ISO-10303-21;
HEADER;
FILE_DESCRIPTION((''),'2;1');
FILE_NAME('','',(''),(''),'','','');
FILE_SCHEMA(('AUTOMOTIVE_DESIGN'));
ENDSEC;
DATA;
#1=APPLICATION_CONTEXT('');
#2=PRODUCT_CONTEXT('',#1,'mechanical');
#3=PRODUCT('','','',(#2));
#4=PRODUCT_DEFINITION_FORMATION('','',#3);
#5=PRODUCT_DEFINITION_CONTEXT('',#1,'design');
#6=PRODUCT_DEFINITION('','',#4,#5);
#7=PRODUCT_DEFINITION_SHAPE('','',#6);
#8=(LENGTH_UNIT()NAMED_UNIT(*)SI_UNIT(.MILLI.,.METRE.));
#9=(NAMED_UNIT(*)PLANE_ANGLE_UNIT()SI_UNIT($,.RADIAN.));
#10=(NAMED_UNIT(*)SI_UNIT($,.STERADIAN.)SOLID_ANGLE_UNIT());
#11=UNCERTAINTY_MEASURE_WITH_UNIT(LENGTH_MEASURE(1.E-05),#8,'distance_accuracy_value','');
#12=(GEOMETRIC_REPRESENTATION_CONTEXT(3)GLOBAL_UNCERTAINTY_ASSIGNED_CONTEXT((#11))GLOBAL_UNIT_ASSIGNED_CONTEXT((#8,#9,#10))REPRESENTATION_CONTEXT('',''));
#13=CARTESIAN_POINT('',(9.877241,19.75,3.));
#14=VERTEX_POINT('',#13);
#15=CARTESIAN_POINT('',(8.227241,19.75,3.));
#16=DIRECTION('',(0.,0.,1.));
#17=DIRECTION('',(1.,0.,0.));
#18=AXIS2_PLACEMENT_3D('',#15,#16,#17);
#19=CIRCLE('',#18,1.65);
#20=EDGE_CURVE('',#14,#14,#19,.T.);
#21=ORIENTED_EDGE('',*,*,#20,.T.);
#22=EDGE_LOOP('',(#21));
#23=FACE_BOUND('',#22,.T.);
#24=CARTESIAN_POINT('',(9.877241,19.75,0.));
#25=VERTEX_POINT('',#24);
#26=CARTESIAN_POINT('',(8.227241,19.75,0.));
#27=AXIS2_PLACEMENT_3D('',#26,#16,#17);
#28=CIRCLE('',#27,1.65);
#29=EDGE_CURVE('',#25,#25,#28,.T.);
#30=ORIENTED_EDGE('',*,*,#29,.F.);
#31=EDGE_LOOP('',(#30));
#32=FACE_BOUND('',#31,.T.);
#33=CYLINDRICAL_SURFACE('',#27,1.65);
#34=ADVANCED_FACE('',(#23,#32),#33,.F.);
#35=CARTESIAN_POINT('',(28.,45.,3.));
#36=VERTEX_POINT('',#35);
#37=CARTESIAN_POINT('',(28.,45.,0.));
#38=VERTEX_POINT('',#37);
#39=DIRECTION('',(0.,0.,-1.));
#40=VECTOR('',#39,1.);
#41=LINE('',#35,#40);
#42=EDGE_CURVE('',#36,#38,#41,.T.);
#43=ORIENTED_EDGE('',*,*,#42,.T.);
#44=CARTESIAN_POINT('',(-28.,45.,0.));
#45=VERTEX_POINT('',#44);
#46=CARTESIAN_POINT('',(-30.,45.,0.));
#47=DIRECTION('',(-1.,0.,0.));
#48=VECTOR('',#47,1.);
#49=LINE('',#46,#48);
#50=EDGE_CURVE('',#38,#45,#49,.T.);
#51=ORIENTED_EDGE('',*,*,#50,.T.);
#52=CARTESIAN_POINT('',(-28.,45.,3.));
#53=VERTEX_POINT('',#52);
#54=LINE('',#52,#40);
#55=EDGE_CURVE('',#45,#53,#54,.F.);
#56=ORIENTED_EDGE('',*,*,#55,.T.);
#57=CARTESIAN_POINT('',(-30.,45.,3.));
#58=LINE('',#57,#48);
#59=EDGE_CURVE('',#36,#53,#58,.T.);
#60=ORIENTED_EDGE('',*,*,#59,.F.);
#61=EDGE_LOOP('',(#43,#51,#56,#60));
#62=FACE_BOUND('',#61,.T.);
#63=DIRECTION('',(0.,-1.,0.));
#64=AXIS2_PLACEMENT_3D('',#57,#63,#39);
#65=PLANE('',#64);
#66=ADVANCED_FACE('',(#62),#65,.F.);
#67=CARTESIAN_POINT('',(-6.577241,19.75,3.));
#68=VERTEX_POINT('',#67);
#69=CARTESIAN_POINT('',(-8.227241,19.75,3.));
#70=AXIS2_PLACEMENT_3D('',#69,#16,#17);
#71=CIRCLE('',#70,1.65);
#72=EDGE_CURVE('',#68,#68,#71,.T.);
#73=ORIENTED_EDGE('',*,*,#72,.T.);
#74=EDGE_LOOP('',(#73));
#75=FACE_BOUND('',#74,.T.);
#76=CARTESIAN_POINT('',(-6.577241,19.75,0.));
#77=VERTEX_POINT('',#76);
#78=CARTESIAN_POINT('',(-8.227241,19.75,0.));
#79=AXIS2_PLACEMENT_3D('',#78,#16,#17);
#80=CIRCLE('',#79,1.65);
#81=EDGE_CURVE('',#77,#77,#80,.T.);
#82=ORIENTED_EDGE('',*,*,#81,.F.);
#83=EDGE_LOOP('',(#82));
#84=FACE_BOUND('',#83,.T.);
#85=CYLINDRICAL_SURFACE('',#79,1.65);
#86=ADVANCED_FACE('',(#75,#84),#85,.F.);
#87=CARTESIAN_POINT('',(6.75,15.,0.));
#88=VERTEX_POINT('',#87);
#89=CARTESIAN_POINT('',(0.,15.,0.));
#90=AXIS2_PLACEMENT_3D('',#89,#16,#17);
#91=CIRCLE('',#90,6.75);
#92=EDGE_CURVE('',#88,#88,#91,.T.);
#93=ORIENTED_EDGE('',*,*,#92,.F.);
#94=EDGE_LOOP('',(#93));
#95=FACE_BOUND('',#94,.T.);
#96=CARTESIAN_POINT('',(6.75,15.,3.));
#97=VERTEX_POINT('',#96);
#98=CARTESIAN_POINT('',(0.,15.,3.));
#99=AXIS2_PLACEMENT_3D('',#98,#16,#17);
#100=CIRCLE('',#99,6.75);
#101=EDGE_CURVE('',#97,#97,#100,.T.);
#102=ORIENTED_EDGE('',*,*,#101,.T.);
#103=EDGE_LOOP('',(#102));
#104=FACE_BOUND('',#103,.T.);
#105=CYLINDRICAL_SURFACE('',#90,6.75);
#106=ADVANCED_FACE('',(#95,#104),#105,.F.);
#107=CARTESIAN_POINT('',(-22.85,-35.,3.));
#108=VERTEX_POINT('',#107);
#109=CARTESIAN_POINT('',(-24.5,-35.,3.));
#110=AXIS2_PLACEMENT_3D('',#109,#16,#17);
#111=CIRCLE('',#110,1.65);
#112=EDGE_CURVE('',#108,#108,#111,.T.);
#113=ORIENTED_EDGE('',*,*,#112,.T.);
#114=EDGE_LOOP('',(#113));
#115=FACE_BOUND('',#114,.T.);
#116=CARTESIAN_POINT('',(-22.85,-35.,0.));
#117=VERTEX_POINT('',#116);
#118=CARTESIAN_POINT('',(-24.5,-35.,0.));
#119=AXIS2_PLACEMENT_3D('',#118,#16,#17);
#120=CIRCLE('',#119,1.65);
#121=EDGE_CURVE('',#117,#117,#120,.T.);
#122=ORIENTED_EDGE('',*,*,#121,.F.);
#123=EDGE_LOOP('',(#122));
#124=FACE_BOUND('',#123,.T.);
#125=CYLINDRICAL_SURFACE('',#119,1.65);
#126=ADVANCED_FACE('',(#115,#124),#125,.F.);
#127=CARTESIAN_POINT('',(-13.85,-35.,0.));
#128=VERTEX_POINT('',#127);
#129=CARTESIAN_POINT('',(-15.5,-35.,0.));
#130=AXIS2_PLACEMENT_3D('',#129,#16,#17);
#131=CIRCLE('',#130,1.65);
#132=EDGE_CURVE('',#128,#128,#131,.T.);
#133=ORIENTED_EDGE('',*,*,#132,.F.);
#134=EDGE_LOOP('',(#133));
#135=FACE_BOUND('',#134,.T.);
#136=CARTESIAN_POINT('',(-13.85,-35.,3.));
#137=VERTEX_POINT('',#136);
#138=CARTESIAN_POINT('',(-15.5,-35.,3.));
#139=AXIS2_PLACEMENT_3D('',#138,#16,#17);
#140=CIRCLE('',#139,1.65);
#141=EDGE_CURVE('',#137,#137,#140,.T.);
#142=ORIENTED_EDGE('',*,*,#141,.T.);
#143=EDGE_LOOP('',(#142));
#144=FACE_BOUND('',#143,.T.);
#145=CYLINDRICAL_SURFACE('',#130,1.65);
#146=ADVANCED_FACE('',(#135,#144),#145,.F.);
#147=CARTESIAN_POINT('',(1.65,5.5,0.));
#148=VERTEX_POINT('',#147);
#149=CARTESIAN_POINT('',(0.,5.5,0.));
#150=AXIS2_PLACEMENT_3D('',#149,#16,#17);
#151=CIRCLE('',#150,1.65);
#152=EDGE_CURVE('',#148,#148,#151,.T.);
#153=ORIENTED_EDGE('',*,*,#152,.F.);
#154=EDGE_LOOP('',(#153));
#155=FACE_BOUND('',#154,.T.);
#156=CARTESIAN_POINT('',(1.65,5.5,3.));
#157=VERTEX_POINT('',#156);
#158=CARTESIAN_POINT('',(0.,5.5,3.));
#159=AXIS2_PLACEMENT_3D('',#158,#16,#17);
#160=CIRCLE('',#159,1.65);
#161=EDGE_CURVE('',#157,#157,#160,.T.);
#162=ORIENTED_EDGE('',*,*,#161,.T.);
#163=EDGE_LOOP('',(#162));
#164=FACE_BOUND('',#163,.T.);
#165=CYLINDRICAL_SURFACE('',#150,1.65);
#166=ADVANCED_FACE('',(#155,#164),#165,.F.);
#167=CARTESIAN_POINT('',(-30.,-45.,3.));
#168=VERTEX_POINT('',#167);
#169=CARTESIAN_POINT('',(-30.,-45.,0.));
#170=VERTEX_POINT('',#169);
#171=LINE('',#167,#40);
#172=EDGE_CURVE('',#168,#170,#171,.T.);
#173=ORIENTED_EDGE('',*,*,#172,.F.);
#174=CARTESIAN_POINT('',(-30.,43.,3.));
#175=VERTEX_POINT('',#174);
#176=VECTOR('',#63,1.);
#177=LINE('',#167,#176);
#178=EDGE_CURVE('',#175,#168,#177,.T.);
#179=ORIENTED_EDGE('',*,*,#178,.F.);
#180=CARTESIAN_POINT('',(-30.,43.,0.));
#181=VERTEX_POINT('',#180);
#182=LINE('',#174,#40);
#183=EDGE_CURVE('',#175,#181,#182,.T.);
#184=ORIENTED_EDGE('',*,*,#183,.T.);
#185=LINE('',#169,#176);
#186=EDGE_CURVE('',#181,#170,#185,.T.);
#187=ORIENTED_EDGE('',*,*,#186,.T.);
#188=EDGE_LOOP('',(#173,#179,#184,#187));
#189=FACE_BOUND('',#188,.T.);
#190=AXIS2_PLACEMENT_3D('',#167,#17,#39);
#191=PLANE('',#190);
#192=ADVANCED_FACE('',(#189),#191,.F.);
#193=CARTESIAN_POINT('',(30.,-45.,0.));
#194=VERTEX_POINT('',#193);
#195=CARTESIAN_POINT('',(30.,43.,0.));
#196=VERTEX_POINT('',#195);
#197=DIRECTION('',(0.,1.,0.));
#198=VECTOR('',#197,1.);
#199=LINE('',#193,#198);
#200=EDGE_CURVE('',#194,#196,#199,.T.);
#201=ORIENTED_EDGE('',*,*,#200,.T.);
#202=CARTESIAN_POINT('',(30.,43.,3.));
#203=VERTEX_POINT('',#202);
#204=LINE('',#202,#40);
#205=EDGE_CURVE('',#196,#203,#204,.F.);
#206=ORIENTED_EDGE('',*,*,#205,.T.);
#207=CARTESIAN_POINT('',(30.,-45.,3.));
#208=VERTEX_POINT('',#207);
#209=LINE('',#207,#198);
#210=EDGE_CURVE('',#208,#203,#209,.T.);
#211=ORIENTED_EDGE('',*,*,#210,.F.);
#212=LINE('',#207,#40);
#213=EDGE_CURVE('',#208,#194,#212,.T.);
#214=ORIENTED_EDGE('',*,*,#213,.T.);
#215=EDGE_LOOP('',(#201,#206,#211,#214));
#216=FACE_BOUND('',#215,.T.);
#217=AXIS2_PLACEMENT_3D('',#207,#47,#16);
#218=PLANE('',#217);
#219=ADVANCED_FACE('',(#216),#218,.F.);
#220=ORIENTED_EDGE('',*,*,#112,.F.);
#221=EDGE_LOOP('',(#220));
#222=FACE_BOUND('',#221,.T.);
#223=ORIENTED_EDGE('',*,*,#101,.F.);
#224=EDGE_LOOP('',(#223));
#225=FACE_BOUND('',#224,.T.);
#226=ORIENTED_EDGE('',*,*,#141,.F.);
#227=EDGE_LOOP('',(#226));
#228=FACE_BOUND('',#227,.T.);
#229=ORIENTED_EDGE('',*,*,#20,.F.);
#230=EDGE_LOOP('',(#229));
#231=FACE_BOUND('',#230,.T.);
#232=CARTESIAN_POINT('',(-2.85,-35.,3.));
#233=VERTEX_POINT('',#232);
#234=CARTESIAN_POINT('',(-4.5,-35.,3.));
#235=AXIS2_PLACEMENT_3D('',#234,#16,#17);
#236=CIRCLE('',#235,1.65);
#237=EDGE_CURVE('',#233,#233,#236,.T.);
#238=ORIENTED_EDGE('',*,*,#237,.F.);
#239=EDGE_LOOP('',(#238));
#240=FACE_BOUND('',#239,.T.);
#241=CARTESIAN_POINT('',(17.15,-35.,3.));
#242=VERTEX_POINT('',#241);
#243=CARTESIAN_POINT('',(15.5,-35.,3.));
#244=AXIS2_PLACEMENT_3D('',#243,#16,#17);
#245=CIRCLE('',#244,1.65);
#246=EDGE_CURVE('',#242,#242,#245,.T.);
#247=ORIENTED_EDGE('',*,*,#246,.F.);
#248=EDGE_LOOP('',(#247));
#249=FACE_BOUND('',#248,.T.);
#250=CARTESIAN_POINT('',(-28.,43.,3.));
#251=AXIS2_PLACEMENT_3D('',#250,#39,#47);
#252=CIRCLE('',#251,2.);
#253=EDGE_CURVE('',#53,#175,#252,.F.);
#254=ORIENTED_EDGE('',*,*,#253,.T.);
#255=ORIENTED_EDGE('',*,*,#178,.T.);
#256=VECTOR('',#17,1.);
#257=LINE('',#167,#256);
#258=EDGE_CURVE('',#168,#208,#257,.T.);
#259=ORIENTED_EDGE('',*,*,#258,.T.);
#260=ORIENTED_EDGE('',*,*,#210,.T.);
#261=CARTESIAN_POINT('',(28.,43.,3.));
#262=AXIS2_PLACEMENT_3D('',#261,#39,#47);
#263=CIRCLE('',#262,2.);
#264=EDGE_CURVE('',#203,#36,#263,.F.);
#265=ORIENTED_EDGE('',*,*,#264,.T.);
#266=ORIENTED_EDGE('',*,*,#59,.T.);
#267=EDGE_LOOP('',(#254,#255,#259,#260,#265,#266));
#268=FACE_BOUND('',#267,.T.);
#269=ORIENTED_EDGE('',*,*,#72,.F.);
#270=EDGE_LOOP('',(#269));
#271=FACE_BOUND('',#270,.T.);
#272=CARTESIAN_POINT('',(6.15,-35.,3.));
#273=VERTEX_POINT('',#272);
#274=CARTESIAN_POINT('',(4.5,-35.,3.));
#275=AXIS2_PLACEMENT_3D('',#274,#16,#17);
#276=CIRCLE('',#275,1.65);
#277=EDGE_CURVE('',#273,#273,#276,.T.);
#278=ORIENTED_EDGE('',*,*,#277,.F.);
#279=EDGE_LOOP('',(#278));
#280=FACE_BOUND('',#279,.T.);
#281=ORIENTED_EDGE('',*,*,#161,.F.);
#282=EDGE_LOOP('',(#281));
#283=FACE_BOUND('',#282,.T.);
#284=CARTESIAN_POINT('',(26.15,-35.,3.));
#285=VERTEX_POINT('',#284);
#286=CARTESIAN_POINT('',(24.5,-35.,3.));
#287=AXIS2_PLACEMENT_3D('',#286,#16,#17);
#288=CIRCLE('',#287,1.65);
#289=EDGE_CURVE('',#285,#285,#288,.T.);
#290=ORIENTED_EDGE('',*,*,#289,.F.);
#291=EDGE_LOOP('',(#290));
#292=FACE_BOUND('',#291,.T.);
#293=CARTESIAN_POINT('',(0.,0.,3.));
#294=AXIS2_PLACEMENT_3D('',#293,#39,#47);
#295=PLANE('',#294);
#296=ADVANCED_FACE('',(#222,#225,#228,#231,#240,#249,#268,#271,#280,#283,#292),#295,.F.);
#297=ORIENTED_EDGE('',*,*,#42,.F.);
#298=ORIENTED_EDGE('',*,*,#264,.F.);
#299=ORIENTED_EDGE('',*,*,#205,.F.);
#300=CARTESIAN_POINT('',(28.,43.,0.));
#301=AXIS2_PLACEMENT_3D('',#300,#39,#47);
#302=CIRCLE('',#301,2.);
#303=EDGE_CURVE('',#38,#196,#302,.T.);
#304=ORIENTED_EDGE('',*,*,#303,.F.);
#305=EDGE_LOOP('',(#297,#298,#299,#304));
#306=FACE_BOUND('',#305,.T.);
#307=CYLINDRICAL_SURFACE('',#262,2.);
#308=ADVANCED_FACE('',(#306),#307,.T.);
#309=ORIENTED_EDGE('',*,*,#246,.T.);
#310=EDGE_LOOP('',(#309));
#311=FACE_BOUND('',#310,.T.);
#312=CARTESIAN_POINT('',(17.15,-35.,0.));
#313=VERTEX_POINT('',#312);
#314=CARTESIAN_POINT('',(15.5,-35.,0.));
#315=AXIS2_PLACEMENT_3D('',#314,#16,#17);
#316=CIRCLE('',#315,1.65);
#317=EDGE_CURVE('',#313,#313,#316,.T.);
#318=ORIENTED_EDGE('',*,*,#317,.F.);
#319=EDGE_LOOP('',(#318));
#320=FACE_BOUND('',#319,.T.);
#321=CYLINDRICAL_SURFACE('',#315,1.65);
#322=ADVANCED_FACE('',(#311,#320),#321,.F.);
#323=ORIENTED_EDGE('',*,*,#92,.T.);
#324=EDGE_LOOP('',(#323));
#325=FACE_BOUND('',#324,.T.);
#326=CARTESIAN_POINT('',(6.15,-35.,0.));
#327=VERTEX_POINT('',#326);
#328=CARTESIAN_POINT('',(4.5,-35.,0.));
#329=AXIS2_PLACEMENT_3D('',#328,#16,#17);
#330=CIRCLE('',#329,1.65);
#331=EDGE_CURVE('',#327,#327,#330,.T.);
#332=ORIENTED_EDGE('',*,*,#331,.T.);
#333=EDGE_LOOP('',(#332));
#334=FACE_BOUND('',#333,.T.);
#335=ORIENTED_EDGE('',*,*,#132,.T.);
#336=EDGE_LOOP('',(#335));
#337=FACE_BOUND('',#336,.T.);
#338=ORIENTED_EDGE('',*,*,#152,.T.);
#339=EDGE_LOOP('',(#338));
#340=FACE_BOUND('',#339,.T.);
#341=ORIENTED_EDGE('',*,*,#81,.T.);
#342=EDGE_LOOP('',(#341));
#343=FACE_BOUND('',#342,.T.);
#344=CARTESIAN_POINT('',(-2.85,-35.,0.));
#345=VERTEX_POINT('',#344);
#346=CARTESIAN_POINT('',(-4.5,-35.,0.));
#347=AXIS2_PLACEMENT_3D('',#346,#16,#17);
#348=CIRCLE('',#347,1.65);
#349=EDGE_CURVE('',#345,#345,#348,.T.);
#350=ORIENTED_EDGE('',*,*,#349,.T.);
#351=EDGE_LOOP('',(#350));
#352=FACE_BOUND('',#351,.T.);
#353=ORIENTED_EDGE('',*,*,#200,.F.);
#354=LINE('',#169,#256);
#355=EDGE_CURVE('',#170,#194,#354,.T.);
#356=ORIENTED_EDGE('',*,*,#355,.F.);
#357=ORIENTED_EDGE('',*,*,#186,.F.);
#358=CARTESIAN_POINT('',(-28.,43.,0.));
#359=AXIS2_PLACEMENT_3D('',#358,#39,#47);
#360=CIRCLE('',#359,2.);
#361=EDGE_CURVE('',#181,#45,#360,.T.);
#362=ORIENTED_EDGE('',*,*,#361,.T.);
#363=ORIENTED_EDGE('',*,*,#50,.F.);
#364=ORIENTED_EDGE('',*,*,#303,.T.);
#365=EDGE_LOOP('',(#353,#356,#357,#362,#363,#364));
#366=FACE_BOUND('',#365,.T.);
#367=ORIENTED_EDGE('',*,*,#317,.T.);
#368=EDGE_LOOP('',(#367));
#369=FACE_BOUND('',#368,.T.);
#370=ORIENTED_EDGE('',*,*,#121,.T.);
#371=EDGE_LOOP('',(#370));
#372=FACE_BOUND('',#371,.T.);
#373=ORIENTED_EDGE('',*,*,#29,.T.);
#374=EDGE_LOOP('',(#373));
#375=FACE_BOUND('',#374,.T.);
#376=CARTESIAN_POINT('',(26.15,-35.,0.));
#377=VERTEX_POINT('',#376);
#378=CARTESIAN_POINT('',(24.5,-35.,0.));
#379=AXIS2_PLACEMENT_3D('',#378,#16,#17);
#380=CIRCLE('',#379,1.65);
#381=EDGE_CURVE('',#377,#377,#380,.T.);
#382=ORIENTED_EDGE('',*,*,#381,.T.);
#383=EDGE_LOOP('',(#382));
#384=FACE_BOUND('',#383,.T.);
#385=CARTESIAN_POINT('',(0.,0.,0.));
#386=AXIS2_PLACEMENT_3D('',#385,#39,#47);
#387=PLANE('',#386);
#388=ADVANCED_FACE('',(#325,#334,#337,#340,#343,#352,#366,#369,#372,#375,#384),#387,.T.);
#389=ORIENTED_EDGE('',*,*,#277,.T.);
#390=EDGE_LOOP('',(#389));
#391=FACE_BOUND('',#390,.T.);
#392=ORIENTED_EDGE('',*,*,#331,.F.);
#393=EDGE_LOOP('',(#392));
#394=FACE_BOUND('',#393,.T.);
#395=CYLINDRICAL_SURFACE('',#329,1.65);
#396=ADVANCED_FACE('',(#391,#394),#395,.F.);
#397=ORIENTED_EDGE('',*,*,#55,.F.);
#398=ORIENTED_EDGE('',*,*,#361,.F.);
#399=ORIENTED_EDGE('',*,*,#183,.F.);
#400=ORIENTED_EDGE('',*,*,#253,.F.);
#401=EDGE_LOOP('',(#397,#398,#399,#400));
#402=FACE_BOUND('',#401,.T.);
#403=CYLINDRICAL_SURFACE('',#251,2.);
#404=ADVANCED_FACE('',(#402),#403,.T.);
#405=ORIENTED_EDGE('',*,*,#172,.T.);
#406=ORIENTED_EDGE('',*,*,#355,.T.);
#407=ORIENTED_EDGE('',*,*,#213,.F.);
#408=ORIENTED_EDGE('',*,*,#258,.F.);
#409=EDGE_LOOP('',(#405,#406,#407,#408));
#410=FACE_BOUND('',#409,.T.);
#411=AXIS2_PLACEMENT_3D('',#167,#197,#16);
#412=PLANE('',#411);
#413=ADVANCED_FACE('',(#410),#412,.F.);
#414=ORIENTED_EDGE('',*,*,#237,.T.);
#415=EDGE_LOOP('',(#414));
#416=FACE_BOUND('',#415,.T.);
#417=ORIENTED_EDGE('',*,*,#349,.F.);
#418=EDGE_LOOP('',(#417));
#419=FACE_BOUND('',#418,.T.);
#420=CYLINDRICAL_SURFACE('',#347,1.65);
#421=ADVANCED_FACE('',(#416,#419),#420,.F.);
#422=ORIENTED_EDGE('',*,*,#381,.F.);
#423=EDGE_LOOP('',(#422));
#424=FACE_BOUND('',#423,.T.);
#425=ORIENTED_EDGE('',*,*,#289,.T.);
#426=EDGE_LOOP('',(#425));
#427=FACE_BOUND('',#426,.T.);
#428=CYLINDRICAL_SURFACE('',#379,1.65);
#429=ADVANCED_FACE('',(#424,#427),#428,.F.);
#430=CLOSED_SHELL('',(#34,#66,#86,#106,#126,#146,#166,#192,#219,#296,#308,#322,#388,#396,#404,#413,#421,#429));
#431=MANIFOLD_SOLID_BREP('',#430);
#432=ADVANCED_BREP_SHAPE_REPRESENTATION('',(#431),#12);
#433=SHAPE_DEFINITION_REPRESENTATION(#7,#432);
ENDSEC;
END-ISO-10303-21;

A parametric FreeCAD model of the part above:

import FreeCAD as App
import Part
import Sketcher

V = App.Vector


def edges_at(feature, points):
    """Names of the edges that pass closest to the given points."""
    edges = feature.Shape.Edges
    near = lambda p: min(range(len(edges)), key=lambda i: edges[i].distToShape(Part.Vertex(*p))[0])
    return sorted({f"Edge{near(p) + 1}" for p in points})


def add_polygon(sketch, points):
    """Adds a closed chain of lines whose ends are joined by coincident constraints."""
    first, n = sketch.GeometryCount, len(points)
    for a, b in zip(points, points[1:] + points[:1]):
        sketch.addGeometry(Part.LineSegment(App.Vector(*a, 0), App.Vector(*b, 0)), False)
    for i in range(n):
        sketch.addConstraint(Sketcher.Constraint("Coincident", first + i, 2, first + (i + 1) % n, 1))

doc = App.newDocument("Part")
body = doc.addObject("PartDesign::Body", "Body")

# Sketch on XY plane
sketch1 = body.newObject("Sketcher::SketchObject", "Sketch")
sketch1.AttachmentSupport = (doc.getObject("XY_Plane"), [""])
sketch1.MapMode = "FlatFace"
add_polygon(sketch1, [(-30, 45), (-30, -45), (30, -45), (30, 45)])  # lines 0-3
sketch1.addConstraint(Sketcher.Constraint("Vertical", 0))
sketch1.addConstraint(Sketcher.Constraint("Horizontal", 1))
sketch1.addConstraint(Sketcher.Constraint("Vertical", 2))
sketch1.addConstraint(Sketcher.Constraint("Horizontal", 3))
sketch1.addConstraint(Sketcher.Constraint("Symmetric", 0, 2, 2, 2, -1, 1))
sketch1.addConstraint(Sketcher.Constraint("DistanceX", 1, 1, 1, 2, 60.0))
sketch1.addConstraint(Sketcher.Constraint("DistanceY", 0, 2, 0, 1, 90.0))
pad1 = body.newObject("PartDesign::Pad", "Pad")
pad1.Profile = sketch1
pad1.Length = 3

# Sketch on XY plane
sketch2 = body.newObject("Sketcher::SketchObject", "Sketch001")
sketch2.AttachmentSupport = (doc.getObject("XY_Plane"), [""])
sketch2.MapMode = "FlatFace"
sketch2.AttachmentOffset = App.Placement(V(0, 0, 3), App.Rotation())
sketch2.addGeometry(Part.Circle(V(0, 5.5, 0), V(0, 0, 1), 1.6), False)
sketch2.addGeometry(Part.Circle(V(-8.2, 19.8, 0), V(0, 0, 1), 1.6), False)
sketch2.addGeometry(Part.Circle(V(8.2, 19.8, 0), V(0, 0, 1), 1.6), False)
sketch2.addConstraint(Sketcher.Constraint("Equal", 0, 1))
sketch2.addConstraint(Sketcher.Constraint("Equal", 1, 2))
sketch2.addConstraint(Sketcher.Constraint("Symmetric", 1, 3, 2, 3, -2))
sketch2.addConstraint(Sketcher.Constraint("PointOnObject", 0, 3, -2))
sketch2.addConstraint(Sketcher.Constraint("Diameter", 0, 3.3))
sketch2.addConstraint(Sketcher.Constraint("DistanceY", -1, 1, 0, 3, 5.5))
sketch2.addConstraint(Sketcher.Constraint("DistanceY", -1, 1, 1, 3, 19.75))
sketch2.addConstraint(Sketcher.Constraint("DistanceX", 1, 3, -1, 1, 8.227241))
pocket1 = body.newObject("PartDesign::Pocket", "Pocket")
pocket1.Profile = sketch2
pocket1.Length = 3

# Sketch on XY plane
sketch3 = body.newObject("Sketcher::SketchObject", "Sketch002")
sketch3.AttachmentSupport = (doc.getObject("XY_Plane"), [""])
sketch3.MapMode = "FlatFace"
sketch3.AttachmentOffset = App.Placement(V(0, 0, 3), App.Rotation())
sketch3.addGeometry(Part.Circle(V(4.5, -35, 0), V(0, 0, 1), 1.6), False)
sketch3.addGeometry(Part.Circle(V(-4.5, -35, 0), V(0, 0, 1), 1.6), False)
sketch3.addGeometry(Part.Circle(V(24.5, -35, 0), V(0, 0, 1), 1.6), False)
sketch3.addGeometry(Part.Circle(V(15.5, -35, 0), V(0, 0, 1), 1.6), False)
sketch3.addGeometry(Part.Circle(V(-24.5, -35, 0), V(0, 0, 1), 1.6), False)
sketch3.addGeometry(Part.Circle(V(-15.5, -35, 0), V(0, 0, 1), 1.6), False)
sketch3.addConstraint(Sketcher.Constraint("Equal", 0, 1))
sketch3.addConstraint(Sketcher.Constraint("Equal", 1, 2))
sketch3.addConstraint(Sketcher.Constraint("Equal", 2, 3))
sketch3.addConstraint(Sketcher.Constraint("Equal", 3, 4))
sketch3.addConstraint(Sketcher.Constraint("Equal", 4, 5))
sketch3.addConstraint(Sketcher.Constraint("Symmetric", 0, 3, 1, 3, -2))
sketch3.addConstraint(Sketcher.Constraint("Symmetric", 2, 3, 4, 3, -2))
sketch3.addConstraint(Sketcher.Constraint("Symmetric", 3, 3, 5, 3, -2))
sketch3.addConstraint(Sketcher.Constraint("Horizontal", 1, 3, 2, 3))
sketch3.addConstraint(Sketcher.Constraint("Horizontal", 2, 3, 3, 3))
sketch3.addConstraint(Sketcher.Constraint("Diameter", 0, 3.3))
sketch3.addConstraint(Sketcher.Constraint("DistanceY", 0, 3, -1, 1, 35.0))
sketch3.addConstraint(Sketcher.Constraint("DistanceX", 1, 3, 0, 3, 9.0))
sketch3.addConstraint(Sketcher.Constraint("DistanceX", 0, 3, 2, 3, 20.0))
sketch3.addConstraint(Sketcher.Constraint("DistanceX", 3, 3, 2, 3, 9.0))
pocket2 = body.newObject("PartDesign::Pocket", "Pocket001")
pocket2.Profile = sketch3
pocket2.Length = 3

# Sketch on XY plane
sketch4 = body.newObject("Sketcher::SketchObject", "Sketch003")
sketch4.AttachmentSupport = (doc.getObject("XY_Plane"), [""])
sketch4.MapMode = "FlatFace"
sketch4.AttachmentOffset = App.Placement(V(0, 0, 3), App.Rotation())
sketch4.addGeometry(Part.Circle(V(0, 15, 0), V(0, 0, 1), 7), False)
sketch4.addConstraint(Sketcher.Constraint("PointOnObject", 0, 3, -2))
sketch4.addConstraint(Sketcher.Constraint("Diameter", 0, 13.5))
sketch4.addConstraint(Sketcher.Constraint("DistanceY", -1, 1, 0, 3, 15.0))
pocket3 = body.newObject("PartDesign::Pocket", "Pocket002")
pocket3.Profile = sketch4
pocket3.Length = 3
doc.recompute()

fillet = body.newObject("PartDesign::Fillet", "Fillet")
fillet.Base = (pocket3, edges_at(pocket3, [(-30, 45, 1.5), (30, 45, 1.5)]))
fillet.Radius = 2

doc.recompute()
